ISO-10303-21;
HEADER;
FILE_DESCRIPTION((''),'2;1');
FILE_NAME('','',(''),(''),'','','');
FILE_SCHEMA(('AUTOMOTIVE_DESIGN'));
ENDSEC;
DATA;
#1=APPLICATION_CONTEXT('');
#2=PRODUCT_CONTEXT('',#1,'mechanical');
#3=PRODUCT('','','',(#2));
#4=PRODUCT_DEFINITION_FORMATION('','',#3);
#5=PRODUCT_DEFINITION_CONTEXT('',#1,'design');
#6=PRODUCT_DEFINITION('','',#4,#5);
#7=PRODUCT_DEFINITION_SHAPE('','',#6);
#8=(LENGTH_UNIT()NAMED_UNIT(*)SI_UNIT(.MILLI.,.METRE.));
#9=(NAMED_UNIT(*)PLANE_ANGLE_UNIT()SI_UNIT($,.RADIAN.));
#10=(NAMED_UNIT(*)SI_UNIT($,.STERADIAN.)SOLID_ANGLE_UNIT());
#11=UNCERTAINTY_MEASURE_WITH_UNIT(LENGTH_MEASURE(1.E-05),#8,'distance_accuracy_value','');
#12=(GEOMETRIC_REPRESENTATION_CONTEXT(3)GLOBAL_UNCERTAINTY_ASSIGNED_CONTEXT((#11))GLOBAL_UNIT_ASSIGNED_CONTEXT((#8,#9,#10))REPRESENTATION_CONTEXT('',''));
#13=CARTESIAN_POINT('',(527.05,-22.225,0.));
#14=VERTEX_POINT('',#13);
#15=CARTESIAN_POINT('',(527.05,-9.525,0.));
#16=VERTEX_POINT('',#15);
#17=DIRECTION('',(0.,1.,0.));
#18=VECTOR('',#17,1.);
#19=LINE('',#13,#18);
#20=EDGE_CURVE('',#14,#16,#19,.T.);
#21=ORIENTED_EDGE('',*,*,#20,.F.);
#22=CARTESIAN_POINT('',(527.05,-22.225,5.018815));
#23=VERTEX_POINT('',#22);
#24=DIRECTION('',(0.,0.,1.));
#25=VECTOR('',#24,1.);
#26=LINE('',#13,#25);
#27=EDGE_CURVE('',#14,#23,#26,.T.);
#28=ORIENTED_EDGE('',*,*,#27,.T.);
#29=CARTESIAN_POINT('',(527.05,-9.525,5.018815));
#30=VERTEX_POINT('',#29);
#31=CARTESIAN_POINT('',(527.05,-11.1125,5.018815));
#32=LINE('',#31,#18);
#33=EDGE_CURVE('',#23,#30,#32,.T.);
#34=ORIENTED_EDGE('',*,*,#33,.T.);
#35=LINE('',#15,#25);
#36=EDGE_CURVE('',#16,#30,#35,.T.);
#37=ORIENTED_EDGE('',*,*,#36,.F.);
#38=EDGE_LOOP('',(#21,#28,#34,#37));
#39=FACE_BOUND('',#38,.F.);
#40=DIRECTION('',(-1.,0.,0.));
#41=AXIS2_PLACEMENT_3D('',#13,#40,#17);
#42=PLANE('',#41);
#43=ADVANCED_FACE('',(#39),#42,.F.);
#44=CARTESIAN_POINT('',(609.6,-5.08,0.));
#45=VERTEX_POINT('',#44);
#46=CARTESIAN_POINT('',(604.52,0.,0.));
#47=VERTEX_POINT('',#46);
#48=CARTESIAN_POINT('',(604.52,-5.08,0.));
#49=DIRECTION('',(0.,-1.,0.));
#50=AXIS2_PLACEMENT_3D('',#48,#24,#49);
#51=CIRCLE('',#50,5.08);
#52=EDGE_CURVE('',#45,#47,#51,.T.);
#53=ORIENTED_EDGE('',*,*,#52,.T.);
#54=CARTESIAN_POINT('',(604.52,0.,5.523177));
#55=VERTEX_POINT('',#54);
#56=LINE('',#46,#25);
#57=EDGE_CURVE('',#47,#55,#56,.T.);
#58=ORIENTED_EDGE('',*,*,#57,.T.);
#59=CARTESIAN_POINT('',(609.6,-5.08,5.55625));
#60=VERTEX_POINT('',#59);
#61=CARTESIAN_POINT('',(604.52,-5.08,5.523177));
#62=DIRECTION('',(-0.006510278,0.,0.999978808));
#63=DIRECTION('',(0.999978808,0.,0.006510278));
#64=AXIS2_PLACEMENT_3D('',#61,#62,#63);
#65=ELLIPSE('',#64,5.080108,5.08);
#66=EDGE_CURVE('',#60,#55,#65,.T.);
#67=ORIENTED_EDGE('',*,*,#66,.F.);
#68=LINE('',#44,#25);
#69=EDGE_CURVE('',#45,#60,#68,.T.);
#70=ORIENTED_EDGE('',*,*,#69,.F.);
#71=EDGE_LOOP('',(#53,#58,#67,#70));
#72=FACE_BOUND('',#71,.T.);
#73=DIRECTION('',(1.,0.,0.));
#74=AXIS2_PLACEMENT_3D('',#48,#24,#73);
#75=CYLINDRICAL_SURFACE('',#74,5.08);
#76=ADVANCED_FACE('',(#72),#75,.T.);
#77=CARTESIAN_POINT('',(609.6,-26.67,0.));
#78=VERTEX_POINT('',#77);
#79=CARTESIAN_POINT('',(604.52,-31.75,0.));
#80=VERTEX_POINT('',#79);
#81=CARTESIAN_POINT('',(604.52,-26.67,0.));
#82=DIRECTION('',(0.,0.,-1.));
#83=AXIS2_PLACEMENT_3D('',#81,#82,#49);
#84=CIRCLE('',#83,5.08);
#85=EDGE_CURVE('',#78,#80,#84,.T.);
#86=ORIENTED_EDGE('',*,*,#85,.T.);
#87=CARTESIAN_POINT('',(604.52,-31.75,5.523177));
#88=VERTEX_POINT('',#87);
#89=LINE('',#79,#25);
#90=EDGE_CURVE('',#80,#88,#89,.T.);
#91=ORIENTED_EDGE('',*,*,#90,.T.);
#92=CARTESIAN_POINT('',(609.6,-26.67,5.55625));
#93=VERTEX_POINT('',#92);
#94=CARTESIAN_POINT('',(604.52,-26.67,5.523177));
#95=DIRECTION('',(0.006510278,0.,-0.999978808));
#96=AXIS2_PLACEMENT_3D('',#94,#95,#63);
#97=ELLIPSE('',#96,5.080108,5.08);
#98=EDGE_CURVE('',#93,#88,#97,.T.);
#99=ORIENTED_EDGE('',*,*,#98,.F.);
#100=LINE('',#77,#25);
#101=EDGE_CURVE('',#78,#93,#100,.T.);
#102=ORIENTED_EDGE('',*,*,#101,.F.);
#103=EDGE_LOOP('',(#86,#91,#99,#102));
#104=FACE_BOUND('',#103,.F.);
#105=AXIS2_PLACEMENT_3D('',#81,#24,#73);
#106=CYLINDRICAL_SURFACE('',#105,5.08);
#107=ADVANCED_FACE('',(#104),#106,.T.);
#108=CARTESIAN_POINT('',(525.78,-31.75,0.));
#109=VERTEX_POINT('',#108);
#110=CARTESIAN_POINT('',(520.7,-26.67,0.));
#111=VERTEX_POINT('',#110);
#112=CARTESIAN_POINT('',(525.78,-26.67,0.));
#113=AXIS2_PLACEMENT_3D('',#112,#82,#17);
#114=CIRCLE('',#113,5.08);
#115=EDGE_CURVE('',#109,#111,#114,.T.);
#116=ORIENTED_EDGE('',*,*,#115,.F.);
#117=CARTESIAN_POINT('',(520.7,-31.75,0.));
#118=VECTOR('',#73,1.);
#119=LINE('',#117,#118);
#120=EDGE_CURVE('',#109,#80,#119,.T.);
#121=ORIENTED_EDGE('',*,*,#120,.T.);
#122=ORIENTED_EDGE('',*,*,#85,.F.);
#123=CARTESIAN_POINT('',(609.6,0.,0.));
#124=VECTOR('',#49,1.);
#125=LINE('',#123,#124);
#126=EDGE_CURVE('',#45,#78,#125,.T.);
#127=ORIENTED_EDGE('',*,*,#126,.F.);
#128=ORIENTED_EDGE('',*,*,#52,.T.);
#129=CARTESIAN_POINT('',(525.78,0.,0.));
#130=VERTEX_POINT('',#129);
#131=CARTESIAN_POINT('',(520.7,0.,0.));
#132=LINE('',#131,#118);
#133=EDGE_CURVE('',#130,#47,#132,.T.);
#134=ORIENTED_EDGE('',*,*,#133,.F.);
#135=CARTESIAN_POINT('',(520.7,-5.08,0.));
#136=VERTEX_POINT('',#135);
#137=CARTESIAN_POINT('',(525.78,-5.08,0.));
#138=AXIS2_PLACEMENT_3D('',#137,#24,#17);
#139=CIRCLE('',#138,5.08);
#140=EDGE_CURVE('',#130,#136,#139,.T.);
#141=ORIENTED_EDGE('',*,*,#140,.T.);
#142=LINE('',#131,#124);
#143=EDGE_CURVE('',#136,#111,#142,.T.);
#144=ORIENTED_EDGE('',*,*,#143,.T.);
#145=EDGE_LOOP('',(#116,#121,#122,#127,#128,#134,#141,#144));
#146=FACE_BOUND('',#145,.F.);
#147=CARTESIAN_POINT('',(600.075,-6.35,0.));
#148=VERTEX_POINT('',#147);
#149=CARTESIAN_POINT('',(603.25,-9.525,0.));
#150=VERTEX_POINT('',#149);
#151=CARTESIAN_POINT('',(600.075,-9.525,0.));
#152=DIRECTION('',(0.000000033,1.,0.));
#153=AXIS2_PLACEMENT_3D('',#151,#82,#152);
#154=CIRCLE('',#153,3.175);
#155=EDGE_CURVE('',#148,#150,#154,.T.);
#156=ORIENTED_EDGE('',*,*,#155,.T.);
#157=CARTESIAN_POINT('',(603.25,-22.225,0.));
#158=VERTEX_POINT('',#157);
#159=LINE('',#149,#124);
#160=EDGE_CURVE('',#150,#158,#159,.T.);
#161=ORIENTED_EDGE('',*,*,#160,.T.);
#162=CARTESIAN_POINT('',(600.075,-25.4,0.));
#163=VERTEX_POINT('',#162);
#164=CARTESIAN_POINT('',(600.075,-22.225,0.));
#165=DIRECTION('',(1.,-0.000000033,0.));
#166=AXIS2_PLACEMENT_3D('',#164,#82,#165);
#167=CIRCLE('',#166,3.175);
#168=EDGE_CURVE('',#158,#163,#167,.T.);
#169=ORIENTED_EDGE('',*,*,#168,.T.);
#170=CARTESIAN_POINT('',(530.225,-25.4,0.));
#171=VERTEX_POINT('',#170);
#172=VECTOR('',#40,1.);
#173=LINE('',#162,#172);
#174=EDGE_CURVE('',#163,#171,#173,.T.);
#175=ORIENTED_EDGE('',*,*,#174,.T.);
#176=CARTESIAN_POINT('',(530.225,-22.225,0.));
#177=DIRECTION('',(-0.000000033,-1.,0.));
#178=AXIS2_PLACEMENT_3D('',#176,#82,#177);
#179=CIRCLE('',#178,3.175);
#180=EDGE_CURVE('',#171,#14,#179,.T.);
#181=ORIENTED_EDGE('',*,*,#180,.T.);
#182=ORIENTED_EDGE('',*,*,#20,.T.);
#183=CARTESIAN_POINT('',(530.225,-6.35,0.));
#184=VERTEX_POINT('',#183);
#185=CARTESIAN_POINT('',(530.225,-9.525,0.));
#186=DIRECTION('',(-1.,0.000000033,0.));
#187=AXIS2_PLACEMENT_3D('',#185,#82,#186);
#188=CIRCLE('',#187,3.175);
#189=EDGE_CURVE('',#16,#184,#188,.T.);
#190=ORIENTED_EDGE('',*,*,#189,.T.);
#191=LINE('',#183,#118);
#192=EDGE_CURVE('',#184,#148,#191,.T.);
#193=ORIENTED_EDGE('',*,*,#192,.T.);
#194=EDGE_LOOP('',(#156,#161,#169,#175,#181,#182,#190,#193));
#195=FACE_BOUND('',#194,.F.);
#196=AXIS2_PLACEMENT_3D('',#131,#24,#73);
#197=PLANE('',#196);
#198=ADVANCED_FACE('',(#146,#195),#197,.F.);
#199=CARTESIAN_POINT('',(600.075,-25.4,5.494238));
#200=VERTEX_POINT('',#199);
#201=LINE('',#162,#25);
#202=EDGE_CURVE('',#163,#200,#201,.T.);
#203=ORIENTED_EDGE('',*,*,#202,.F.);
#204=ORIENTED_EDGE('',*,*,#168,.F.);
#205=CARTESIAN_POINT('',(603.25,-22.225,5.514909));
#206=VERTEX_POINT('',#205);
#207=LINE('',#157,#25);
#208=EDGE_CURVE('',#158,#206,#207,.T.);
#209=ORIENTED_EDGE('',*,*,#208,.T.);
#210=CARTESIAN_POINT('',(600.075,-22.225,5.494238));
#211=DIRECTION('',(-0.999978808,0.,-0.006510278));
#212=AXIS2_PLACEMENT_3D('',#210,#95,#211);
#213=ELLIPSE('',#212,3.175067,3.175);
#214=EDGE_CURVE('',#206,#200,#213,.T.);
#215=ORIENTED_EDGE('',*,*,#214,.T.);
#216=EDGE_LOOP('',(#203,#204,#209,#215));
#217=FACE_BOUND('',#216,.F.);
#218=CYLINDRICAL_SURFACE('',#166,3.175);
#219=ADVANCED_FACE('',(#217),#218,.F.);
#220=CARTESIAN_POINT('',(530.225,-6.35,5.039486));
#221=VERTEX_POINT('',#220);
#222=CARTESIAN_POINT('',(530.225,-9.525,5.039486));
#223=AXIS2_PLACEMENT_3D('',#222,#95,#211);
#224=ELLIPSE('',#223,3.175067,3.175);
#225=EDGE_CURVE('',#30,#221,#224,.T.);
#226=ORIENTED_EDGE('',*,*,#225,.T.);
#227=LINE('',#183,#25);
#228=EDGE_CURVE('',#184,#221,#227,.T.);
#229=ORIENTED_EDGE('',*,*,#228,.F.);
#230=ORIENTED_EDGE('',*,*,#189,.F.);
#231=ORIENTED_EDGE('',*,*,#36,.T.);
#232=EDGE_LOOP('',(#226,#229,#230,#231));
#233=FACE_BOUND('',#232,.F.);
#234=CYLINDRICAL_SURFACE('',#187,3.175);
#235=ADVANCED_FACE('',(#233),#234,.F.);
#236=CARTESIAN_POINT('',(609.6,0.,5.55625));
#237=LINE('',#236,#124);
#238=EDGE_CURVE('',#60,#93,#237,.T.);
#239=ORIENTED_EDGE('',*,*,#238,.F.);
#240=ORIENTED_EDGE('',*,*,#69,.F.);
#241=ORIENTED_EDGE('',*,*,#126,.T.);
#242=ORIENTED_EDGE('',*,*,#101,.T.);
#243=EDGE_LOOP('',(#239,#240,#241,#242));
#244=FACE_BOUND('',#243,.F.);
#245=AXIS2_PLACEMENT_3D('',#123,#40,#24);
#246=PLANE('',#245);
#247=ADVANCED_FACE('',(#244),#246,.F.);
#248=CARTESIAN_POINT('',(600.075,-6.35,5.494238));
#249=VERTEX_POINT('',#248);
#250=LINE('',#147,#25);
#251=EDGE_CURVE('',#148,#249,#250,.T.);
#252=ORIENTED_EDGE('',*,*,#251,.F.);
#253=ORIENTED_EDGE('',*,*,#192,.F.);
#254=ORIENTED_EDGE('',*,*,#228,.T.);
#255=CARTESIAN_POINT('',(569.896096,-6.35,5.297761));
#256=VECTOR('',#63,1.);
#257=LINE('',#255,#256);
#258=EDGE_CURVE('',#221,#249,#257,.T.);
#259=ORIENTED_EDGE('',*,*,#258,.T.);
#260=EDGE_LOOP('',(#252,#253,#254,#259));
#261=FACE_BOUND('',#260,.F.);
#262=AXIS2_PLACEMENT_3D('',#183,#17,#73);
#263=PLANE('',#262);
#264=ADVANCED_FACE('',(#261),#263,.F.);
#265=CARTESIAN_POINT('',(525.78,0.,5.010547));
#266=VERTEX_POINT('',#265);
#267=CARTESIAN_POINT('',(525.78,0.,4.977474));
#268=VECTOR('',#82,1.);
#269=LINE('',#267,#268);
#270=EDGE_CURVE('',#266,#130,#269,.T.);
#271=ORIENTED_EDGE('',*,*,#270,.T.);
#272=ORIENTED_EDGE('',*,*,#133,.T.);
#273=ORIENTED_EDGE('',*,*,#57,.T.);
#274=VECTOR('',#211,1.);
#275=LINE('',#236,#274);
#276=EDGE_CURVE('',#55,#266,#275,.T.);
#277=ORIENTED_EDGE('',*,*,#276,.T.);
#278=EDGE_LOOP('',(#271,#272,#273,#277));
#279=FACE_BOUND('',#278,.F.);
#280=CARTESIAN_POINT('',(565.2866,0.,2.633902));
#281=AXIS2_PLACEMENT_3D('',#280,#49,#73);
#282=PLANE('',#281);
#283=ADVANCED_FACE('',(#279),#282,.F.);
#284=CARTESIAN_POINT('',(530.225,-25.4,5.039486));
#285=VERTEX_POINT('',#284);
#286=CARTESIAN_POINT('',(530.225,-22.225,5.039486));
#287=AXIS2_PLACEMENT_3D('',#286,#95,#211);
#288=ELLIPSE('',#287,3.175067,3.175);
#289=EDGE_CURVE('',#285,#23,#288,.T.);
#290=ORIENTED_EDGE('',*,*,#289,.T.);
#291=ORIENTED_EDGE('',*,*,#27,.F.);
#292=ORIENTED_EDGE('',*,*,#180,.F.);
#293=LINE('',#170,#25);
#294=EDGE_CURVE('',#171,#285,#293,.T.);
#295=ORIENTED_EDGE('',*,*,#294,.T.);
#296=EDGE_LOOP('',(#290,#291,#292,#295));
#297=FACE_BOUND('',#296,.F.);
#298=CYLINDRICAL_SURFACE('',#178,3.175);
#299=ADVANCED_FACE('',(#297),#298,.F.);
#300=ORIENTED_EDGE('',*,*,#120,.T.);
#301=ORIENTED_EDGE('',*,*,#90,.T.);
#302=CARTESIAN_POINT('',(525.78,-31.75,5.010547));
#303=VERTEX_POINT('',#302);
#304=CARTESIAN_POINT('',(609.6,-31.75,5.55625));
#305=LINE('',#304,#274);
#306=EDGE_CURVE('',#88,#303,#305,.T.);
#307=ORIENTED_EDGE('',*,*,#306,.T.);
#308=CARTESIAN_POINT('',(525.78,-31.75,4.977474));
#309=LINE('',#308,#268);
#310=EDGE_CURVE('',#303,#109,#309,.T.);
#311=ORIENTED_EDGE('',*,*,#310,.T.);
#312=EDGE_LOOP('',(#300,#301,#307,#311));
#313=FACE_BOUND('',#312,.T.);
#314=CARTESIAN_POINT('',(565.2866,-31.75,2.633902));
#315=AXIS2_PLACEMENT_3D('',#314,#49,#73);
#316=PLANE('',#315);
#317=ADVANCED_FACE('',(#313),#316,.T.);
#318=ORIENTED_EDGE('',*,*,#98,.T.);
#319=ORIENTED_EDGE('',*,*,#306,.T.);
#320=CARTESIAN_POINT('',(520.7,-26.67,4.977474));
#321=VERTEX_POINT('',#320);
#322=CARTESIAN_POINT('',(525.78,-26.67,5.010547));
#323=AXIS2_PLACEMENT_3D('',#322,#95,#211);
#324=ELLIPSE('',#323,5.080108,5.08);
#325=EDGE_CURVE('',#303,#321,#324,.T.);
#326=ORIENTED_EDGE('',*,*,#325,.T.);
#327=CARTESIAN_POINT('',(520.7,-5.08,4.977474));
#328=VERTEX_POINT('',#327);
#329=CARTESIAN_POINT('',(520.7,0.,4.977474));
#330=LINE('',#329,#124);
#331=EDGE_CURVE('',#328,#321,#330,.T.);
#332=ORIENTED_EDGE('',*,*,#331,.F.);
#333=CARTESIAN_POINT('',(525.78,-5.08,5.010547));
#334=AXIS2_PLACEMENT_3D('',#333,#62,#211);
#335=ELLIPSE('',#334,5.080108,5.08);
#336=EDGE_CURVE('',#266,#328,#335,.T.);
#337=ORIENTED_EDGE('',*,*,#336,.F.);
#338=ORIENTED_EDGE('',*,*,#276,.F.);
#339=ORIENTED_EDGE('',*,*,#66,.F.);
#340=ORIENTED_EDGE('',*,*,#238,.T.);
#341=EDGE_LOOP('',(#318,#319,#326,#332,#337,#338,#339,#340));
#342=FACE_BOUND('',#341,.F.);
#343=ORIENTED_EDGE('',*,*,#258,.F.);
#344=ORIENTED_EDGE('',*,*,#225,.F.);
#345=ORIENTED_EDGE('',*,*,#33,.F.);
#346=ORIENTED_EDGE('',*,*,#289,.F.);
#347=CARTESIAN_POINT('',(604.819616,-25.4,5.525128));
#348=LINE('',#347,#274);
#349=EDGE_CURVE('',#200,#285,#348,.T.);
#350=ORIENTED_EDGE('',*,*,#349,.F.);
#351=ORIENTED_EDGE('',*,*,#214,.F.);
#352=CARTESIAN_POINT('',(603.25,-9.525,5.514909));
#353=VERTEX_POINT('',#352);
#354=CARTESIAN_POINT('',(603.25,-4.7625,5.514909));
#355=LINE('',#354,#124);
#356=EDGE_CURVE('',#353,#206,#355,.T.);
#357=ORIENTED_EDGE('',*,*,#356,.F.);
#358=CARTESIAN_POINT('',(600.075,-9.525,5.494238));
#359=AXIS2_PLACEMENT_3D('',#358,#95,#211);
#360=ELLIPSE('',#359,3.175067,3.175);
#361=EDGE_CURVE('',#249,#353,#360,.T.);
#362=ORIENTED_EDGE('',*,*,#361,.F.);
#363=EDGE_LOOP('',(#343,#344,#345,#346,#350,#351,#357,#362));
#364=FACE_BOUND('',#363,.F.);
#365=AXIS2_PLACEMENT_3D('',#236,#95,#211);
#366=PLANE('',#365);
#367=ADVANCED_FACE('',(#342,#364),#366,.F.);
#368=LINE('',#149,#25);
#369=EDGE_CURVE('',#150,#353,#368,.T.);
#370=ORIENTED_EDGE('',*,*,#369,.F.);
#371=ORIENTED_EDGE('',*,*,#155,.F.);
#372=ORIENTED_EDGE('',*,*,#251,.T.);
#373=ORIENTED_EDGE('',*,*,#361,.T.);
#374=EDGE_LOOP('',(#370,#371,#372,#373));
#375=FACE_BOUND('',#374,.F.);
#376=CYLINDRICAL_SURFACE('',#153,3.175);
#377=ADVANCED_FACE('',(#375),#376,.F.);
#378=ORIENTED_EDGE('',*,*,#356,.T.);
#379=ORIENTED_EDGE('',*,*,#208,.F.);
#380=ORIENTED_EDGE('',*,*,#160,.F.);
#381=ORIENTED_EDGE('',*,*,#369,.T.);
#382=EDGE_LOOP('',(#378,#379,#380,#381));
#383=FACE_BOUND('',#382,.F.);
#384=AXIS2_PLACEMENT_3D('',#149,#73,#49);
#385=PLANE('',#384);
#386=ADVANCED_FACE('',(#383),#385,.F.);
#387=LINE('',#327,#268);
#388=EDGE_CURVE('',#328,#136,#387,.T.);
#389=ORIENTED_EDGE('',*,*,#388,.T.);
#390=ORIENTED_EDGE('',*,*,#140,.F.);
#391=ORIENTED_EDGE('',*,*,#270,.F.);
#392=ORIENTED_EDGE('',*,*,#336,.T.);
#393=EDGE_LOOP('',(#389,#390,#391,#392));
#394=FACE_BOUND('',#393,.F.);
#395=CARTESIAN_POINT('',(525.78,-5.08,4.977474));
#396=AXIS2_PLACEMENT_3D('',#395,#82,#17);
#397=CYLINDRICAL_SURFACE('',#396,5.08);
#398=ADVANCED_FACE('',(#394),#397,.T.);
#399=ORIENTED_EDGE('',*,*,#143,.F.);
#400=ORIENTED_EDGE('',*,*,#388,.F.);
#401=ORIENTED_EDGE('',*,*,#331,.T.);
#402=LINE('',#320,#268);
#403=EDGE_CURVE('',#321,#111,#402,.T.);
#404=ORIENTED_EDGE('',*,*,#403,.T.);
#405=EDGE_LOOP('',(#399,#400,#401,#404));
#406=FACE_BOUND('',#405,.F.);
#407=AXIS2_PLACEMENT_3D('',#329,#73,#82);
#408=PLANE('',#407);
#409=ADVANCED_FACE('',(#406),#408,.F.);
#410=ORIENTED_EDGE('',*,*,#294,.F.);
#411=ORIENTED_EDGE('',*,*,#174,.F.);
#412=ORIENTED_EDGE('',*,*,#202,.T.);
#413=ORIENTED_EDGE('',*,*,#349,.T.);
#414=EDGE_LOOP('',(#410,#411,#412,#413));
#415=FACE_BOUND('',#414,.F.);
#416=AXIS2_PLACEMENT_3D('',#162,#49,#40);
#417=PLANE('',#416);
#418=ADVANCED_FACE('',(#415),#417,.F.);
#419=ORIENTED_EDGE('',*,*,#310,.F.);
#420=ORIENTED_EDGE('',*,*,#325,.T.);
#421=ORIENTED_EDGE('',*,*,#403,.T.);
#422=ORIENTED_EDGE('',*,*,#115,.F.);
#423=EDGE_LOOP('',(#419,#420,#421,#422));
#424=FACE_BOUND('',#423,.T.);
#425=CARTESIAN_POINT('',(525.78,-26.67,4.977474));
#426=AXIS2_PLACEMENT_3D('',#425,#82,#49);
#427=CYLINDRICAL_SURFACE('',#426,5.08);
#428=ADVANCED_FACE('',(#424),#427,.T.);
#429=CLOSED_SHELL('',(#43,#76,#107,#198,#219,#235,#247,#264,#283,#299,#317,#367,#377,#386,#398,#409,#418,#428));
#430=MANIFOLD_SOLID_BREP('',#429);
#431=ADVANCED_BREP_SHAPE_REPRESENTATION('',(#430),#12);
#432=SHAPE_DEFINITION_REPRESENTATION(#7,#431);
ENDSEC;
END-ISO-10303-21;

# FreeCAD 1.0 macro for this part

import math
import FreeCAD as App
import Part
import Sketcher
from FreeCAD import Vector
Q = App.Units.Quantity


def edges_at(feature, points):
    """Names of the edges that pass closest to the given points."""
    edges = feature.Shape.Edges
    near = lambda p: min(range(len(edges)), key=lambda i: edges[i].distToShape(Part.Vertex(*p))[0])
    return sorted({f"Edge{near(p) + 1}" for p in points})


def add_polygon(sketch, points):
    """Adds a closed chain of lines whose ends are joined by coincident constraints."""
    first, n = sketch.GeometryCount, len(points)
    for a, b in zip(points, points[1:] + points[:1]):
        sketch.addGeometry(Part.LineSegment(App.Vector(*a, 0), App.Vector(*b, 0)), False)
    for i in range(n):
        sketch.addConstraint(Sketcher.Constraint("Coincident", first + i, 2, first + (i + 1) % n, 1))

doc = App.newDocument("Part")
params = doc.addObject("Spreadsheet::Sheet", "Params")
for row, (alias, value) in enumerate([
    ("sketch1_width", "3.5 in"),
    ("sketch1_height", "0.21875 in"),
    ("pad1_length", "1.25 in"),
    ("sketch2_height", "0.5 in"),
    ("sketch2_radius", "0.125 in"),
    ("sketch2_width", "2.75 in"),
    ("fillet_radius", "0.2 in"),
], start=1):
    params.set(f"A{row}", alias)
    params.set(f"B{row}", "=" + value)
    params.setAlias(f"B{row}", alias)

body = doc.addObject("PartDesign::Body", "Body")

sketch1 = body.newObject("Sketcher::SketchObject", "Sketch")
sketch1.AttachmentSupport = (doc.getObject("XZ_Plane"), [""])
sketch1.MapMode = "FlatFace"
add_polygon(sketch1, [(609.6, 0), (609.6, 5.55625), (520.7, 4.977474), (520.7, 0)])
sketch1.addConstraint([
    Sketcher.Constraint("Vertical", 0),
    Sketcher.Constraint("Vertical", 2),
    Sketcher.Constraint("Horizontal", 3),
    Sketcher.Constraint("PointOnObject", 2, 2, -1),
    Sketcher.Constraint("DistanceX", 3, 1, 3, 2, Q("3.5 in")),
    Sketcher.Constraint("DistanceX", -1, 1, 0, 2, Q("24 in")),
    Sketcher.Constraint("DistanceY", 0, 1, 0, 2, Q("0.21875 in")),
    Sketcher.Constraint("DistanceY", 2, 2, 2, 1, Q("4.977474 mm")),
])
sketch1.setExpression("Constraints[8]", "Params.sketch1_width")
sketch1.setExpression("Constraints[10]", "Params.sketch1_height")
pad1 = body.newObject("PartDesign::Pad", "Pad")
pad1.Profile = sketch1
pad1.setExpression("Length", "Params.pad1_length")

sketch2 = body.newObject("Sketcher::SketchObject", "Sketch001")
sketch2.AttachmentSupport = (doc.getObject("XY_Plane"), [""])
sketch2.MapMode = "FlatFace"
sketch2.addGeometry([
    Part.LineSegment(Vector(600.075, -25.4, 0), Vector(530.225, -25.4, 0)),
    Part.ArcOfCircle(Part.Circle(Vector(530.225, -22.225, 0), Vector(0, 0, 1), 3.175), math.radians(-179.999998), math.radians(-90.000002)),
    Part.LineSegment(Vector(527.05, -22.225, 0), Vector(527.05, -9.525, 0)),
    Part.ArcOfCircle(Part.Circle(Vector(530.225, -9.525, 0), Vector(0, 0, 1), 3.175), math.radians(90.000002), math.radians(179.999998)),
    Part.LineSegment(Vector(530.225, -6.35, 0), Vector(600.075, -6.35, 0)),
    Part.ArcOfCircle(Part.Circle(Vector(600.075, -9.525, 0), Vector(0, 0, 1), 3.175), math.radians(0.000002), math.radians(89.999998)),
    Part.LineSegment(Vector(603.25, -9.525, 0), Vector(603.25, -22.225, 0)),
    Part.ArcOfCircle(Part.Circle(Vector(600.075, -22.225, 0), Vector(0, 0, 1), 3.175), math.radians(-89.999998), math.radians(-0.000002)),
], False)
sketch2.addConstraint([
    Sketcher.Constraint("Tangent", 0, 2, 1, 2),
    Sketcher.Constraint("Tangent", 1, 1, 2, 1),
    Sketcher.Constraint("Tangent", 2, 2, 3, 2),
    Sketcher.Constraint("Tangent", 3, 1, 4, 1),
    Sketcher.Constraint("Tangent", 4, 2, 5, 2),
    Sketcher.Constraint("Tangent", 5, 1, 6, 1),
    Sketcher.Constraint("Tangent", 6, 2, 7, 2),
    Sketcher.Constraint("Tangent", 7, 1, 0, 1),
    Sketcher.Constraint("Horizontal", 0),
    Sketcher.Constraint("Vertical", 2),
    Sketcher.Constraint("Horizontal", 4),
    Sketcher.Constraint("Vertical", 6),
    Sketcher.Constraint("Equal", 1, 3),
    Sketcher.Constraint("Equal", 3, 5),
    Sketcher.Constraint("Equal", 5, 7),
    Sketcher.Constraint("DistanceY", 2, 1, 2, 2, Q("0.5 in")),
    Sketcher.Constraint("DistanceY", 0, 2, -1, 1, Q("1 in")),
    Sketcher.Constraint("Radius", 1, Q("0.125 in")),
    Sketcher.Constraint("DistanceX", 0, 2, 0, 1, Q("2.75 in")),
    Sketcher.Constraint("DistanceX", -1, 1, 1, 1, Q("20.75 in")),
])
sketch2.setExpression("Constraints[15]", "Params.sketch2_height")
sketch2.setExpression("Constraints[17]", "Params.sketch2_radius")
sketch2.setExpression("Constraints[18]", "Params.sketch2_width")
pocket1 = body.newObject("PartDesign::Pocket", "Pocket")
pocket1.Profile = sketch2
pocket1.Type = "ThroughAll"
pocket1.Reversed = True
doc.recompute()

fillet = body.newObject("PartDesign::Fillet", "Fillet")
fillet.Base = (pocket1, edges_at(pocket1, [
    (520.7, -31.75, 2.489),
    (520.7, 0, 2.489),
    (609.6, -31.75, 2.778),
    (609.6, 0, 2.778),
]))
fillet.setExpression("Radius", "Params.fillet_radius")

doc.recompute()
